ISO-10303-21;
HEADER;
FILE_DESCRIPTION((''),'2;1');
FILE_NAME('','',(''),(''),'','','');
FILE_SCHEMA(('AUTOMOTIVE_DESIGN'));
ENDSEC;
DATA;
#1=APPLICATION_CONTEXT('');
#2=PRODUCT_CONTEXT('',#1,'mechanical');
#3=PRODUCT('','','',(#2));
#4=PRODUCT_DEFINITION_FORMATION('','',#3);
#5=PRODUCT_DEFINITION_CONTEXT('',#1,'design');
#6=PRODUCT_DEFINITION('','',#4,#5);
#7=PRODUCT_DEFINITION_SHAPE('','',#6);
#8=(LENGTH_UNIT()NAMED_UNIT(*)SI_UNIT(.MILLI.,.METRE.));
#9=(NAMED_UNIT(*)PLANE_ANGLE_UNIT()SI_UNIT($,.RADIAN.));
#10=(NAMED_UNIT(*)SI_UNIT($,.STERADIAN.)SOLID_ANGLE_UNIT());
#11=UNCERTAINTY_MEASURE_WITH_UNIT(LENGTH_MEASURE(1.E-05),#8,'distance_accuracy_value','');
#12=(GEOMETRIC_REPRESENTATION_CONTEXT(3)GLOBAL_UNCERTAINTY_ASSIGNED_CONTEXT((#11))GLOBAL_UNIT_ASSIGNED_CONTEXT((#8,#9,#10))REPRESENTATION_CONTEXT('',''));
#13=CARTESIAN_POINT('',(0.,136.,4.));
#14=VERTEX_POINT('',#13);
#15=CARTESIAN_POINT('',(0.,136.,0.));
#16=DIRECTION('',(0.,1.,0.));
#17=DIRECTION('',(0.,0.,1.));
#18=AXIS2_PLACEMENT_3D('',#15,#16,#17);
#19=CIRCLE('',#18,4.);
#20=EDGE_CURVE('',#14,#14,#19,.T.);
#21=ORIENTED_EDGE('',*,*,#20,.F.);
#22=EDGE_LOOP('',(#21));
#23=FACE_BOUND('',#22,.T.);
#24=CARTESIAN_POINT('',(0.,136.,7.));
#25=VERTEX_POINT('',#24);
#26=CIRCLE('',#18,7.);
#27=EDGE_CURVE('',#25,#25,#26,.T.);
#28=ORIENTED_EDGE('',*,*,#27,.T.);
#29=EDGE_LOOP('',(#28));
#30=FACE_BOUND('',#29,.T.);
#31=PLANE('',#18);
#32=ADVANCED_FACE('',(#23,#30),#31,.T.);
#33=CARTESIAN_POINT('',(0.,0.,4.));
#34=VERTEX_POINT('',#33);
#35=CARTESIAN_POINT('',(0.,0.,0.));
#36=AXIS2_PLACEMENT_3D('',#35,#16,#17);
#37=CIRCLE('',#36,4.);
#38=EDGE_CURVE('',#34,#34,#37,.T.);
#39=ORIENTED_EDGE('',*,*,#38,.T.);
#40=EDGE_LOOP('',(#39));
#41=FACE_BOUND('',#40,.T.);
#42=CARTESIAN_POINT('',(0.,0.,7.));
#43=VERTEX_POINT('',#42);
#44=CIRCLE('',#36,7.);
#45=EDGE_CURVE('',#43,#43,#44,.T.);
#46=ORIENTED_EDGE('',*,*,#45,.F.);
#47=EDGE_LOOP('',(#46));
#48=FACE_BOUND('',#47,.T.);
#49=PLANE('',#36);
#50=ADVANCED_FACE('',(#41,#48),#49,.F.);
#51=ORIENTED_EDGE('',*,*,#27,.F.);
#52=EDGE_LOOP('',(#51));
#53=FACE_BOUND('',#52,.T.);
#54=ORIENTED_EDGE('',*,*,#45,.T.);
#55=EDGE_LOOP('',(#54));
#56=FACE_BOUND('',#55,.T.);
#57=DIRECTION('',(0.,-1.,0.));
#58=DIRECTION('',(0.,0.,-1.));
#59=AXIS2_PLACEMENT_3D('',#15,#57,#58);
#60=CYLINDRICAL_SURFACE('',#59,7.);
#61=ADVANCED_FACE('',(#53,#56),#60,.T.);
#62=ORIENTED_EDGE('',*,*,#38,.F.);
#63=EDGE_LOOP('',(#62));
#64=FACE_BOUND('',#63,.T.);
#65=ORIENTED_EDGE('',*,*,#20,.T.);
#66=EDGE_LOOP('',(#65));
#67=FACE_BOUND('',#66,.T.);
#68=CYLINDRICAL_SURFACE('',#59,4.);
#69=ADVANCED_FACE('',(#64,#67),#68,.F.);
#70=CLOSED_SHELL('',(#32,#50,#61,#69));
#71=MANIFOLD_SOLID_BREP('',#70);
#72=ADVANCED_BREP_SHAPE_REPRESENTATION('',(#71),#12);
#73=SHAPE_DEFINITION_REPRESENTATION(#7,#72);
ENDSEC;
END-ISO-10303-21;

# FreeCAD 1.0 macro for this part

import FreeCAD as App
import Part
import Sketcher
Q = App.Units.Quantity

doc = App.newDocument("Part")
body = doc.addObject("PartDesign::Body", "Body")

# Sketch on XZ plane
sketch1 = doc.addObject("Sketcher::SketchObject", "Sketch")
body.addObject(sketch1)
sketch1.AttachmentSupport = (doc.XZ_Plane, [""])
sketch1.MapMode = "FlatFace"
sketch1.addGeometry([
    Part.Circle(App.Vector(0, 0, 0), App.Vector(0, 0, 1), 7),
    Part.Circle(App.Vector(0, 0, 0), App.Vector(0, 0, 1), 4),
], False)
sketch1.addConstraint([
    Sketcher.Constraint("Coincident", 0, 3, -1, 1),
    Sketcher.Constraint("Coincident", 1, 3, -1, 1),
    Sketcher.Constraint("Diameter", 0, Q("14 mm")),
    Sketcher.Constraint("Diameter", 1, Q("8 mm")),
])
pad1 = doc.addObject("PartDesign::Pad", "Pad")
body.addObject(pad1)
pad1.Profile = sketch1
pad1.Length = 136
pad1.Reversed = True

doc.recompute()
